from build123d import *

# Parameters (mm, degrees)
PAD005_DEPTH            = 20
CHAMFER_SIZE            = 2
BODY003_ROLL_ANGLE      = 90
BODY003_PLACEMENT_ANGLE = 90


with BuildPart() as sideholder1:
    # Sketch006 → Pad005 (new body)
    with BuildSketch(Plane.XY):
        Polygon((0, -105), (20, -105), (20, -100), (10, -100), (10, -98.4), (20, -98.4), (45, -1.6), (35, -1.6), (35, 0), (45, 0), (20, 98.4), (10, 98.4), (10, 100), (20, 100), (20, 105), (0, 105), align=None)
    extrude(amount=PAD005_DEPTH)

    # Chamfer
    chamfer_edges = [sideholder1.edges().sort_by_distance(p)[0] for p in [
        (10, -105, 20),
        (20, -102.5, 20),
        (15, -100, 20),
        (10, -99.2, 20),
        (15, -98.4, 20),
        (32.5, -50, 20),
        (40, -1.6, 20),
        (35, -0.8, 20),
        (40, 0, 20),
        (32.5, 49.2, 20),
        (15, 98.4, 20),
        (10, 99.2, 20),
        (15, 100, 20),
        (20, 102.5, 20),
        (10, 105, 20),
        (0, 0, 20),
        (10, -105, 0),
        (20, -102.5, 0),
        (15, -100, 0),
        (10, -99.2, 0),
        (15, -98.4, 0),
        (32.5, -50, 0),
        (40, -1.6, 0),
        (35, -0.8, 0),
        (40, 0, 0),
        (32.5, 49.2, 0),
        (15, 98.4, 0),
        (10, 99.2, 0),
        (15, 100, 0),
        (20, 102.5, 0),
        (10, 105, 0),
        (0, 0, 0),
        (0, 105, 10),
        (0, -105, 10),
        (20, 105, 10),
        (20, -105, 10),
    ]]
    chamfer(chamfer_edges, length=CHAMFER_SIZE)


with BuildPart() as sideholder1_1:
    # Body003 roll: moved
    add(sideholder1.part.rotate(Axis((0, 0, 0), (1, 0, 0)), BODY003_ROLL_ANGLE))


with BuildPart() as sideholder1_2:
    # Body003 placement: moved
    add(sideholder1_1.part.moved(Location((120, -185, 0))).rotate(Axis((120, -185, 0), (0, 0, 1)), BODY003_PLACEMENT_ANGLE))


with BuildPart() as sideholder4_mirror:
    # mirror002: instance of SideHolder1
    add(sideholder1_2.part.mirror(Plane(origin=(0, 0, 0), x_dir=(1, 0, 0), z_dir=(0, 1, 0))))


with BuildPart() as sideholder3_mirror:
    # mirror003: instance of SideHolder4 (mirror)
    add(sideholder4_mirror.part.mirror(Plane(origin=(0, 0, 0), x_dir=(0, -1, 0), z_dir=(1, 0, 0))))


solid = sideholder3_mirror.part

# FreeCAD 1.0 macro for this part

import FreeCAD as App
import Part
import Sketcher
from FreeCAD import Vector


def edges_at(feature, points):
    """Names of the edges that pass closest to the given points."""
    edges = feature.Shape.Edges
    near = lambda p: min(range(len(edges)), key=lambda i: edges[i].distToShape(Part.Vertex(*p))[0])
    return sorted({f"Edge{near(p) + 1}" for p in points})

doc = App.newDocument("Part")
body = doc.addObject("PartDesign::Body", "Body")

# Sketch on XY plane
sketch1 = body.newObject("Sketcher::SketchObject", "Sketch")
sketch1.AttachmentSupport = (doc.getObject("XY_Plane"), [""])
sketch1.MapMode = "FlatFace"
sketch1.addGeometry([
    Part.LineSegment(Vector(0, -105, 0), Vector(20, -105, 0)),  # 0
    Part.LineSegment(Vector(20, -105, 0), Vector(20, -100, 0)),  # 1
    Part.LineSegment(Vector(20, -100, 0), Vector(10, -100, 0)),  # 2
    Part.LineSegment(Vector(10, -100, 0), Vector(10, -98.4, 0)),  # 3
    Part.LineSegment(Vector(10, -98.4, 0), Vector(20, -98.4, 0)),  # 4
    Part.LineSegment(Vector(20, -98.4, 0), Vector(45, -1.6, 0)),  # 5
    Part.LineSegment(Vector(45, -1.6, 0), Vector(35, -1.6, 0)),  # 6
    Part.LineSegment(Vector(35, -1.6, 0), Vector(35, 0, 0)),  # 7
    Part.LineSegment(Vector(35, 0, 0), Vector(45, 0, 0)),  # 8
    Part.LineSegment(Vector(45, 0, 0), Vector(20, 98.4, 0)),  # 9
    Part.LineSegment(Vector(20, 98.4, 0), Vector(10, 98.4, 0)),  # 10
    Part.LineSegment(Vector(10, 98.4, 0), Vector(10, 100, 0)),  # 11
    Part.LineSegment(Vector(10, 100, 0), Vector(20, 100, 0)),  # 12
    Part.LineSegment(Vector(20, 100, 0), Vector(20, 105, 0)),  # 13
    Part.LineSegment(Vector(20, 105, 0), Vector(0, 105, 0)),  # 14
    Part.LineSegment(Vector(0, 105, 0), Vector(0, -105, 0)),  # 15
], False)
sketch1.addConstraint([
    Sketcher.Constraint("Coincident", 0, 2, 1, 1),
    Sketcher.Constraint("Coincident", 1, 2, 2, 1),
    Sketcher.Constraint("Coincident", 2, 2, 3, 1),
    Sketcher.Constraint("Coincident", 3, 2, 4, 1),
    Sketcher.Constraint("Coincident", 4, 2, 5, 1),
    Sketcher.Constraint("Coincident", 5, 2, 6, 1),
    Sketcher.Constraint("Coincident", 6, 2, 7, 1),
    Sketcher.Constraint("Coincident", 7, 2, 8, 1),
    Sketcher.Constraint("Coincident", 8, 2, 9, 1),
    Sketcher.Constraint("Coincident", 9, 2, 10, 1),
    Sketcher.Constraint("Coincident", 10, 2, 11, 1),
    Sketcher.Constraint("Coincident", 11, 2, 12, 1),
    Sketcher.Constraint("Coincident", 12, 2, 13, 1),
    Sketcher.Constraint("Coincident", 13, 2, 14, 1),
    Sketcher.Constraint("Coincident", 14, 2, 15, 1),
    Sketcher.Constraint("Coincident", 15, 2, 0, 1),
    Sketcher.Constraint("Horizontal", 0),
    Sketcher.Constraint("Vertical", 1),
    Sketcher.Constraint("Horizontal", 2),
    Sketcher.Constraint("Vertical", 3),
    Sketcher.Constraint("Horizontal", 4),
    Sketcher.Constraint("Horizontal", 6),
    Sketcher.Constraint("Vertical", 7),
    Sketcher.Constraint("Horizontal", 8),
    Sketcher.Constraint("Horizontal", 10),
    Sketcher.Constraint("Vertical", 11),
    Sketcher.Constraint("Horizontal", 12),
    Sketcher.Constraint("Vertical", 13),
    Sketcher.Constraint("Horizontal", 14),
    Sketcher.Constraint("Vertical", 15),
    Sketcher.Constraint("Symmetric", 14, 2, 15, 2, -1, 1),
    Sketcher.Constraint("Symmetric", 4, 2, 9, 2, -1),
    Sketcher.Constraint("Symmetric", 2, 2, 11, 2, -1),
    Sketcher.Constraint("PointOnObject", 7, 2, -1),
    Sketcher.Constraint("Vertical", 1, 2, 4, 2),
    Sketcher.Constraint("Vertical", 5, 2, 8, 2),
    Sketcher.Constraint("Vertical", 9, 2, 12, 2),
    Sketcher.Constraint("Equal", 4, 6),
    Sketcher.Constraint("Equal", 3, 7),
    Sketcher.Constraint("DistanceX", 0, 1, 0, 2, 20.0),
    Sketcher.Constraint("DistanceX", 2, 2, 2, 1, 10.0),
    Sketcher.Constraint("DistanceY", 1, 1, 1, 2, 5.0),
    Sketcher.Constraint("DistanceY", 15, 2, 15, 1, 210.0),
    Sketcher.Constraint("DistanceY", 3, 1, 3, 2, 1.6),
    Sketcher.Constraint("DistanceX", -1, 1, 5, 2, 45.0),
])
pad1 = body.newObject("PartDesign::Pad", "Pad")
pad1.Profile = sketch1
pad1.Length = 20
doc.recompute()

chamfer = body.newObject("PartDesign::Chamfer", "Chamfer")
chamfer.Base = (pad1, edges_at(pad1, [
    (10, -105, 20),
    (20, -102.5, 20),
    (15, -100, 20),
    (10, -99.2, 20),
    (15, -98.4, 20),
    (32.5, -50, 20),
    (40, -1.6, 20),
    (35, -0.8, 20),
    (40, 0, 20),
    (32.5, 49.2, 20),
    (15, 98.4, 20),
    (10, 99.2, 20),
    (15, 100, 20),
    (20, 102.5, 20),
    (10, 105, 20),
    (0, 0, 20),
    (10, -105, 0),
    (20, -102.5, 0),
    (15, -100, 0),
    (10, -99.2, 0),
    (15, -98.4, 0),
    (32.5, -50, 0),
    (40, -1.6, 0),
    (35, -0.8, 0),
    (40, 0, 0),
    (32.5, 49.2, 0),
    (15, 98.4, 0),
    (10, 99.2, 0),
    (15, 100, 0),
    (20, 102.5, 0),
    (10, 105, 0),
    (0, 0, 0),
    (0, 105, 10),
    (0, -105, 10),
    (20, 105, 10),
    (20, -105, 10),
]))
chamfer.Size = 2
body2 = doc.addObject("PartDesign::Body", "Body001")
doc.recompute()

body.Placement = App.Placement(Vector(0, 0, 0), App.Rotation(Vector(1, 0, 0), 90))
boolean = body2.newObject("PartDesign::Boolean", "Boolean")
boolean.Type = "Fuse"
boolean.addObjects([body])
body3 = doc.addObject("PartDesign::Body", "Body002")
doc.recompute()

body2.Placement = App.Placement(Vector(120, -185, 0), App.Rotation(Vector(0, 0, 1), 90))
boolean2 = body3.newObject("PartDesign::Boolean", "Boolean001")
boolean2.Type = "Fuse"
boolean2.addObjects([body2])
body4 = doc.addObject("PartDesign::Body", "Body003")
doc.recompute()

mirroring = doc.addObject("Part::Mirroring", "Mirroring")
mirroring.Source = body3
mirroring.Base = Vector(0, 0, 0)
mirroring.Normal = Vector(0, 1, 0)
body4.BaseFeature = mirroring
doc.recompute()
body5 = doc.addObject("PartDesign::Body", "Body004")
doc.recompute()

mirroring2 = doc.addObject("Part::Mirroring", "Mirroring001")
mirroring2.Source = body4
mirroring2.Base = Vector(0, 0, 0)
mirroring2.Normal = Vector(1, 0, 0)
body5.BaseFeature = mirroring2
doc.recompute()
body3.Visibility = False
body4.Visibility = False
mirroring.Visibility = False
mirroring2.Visibility = False

doc.recompute()
